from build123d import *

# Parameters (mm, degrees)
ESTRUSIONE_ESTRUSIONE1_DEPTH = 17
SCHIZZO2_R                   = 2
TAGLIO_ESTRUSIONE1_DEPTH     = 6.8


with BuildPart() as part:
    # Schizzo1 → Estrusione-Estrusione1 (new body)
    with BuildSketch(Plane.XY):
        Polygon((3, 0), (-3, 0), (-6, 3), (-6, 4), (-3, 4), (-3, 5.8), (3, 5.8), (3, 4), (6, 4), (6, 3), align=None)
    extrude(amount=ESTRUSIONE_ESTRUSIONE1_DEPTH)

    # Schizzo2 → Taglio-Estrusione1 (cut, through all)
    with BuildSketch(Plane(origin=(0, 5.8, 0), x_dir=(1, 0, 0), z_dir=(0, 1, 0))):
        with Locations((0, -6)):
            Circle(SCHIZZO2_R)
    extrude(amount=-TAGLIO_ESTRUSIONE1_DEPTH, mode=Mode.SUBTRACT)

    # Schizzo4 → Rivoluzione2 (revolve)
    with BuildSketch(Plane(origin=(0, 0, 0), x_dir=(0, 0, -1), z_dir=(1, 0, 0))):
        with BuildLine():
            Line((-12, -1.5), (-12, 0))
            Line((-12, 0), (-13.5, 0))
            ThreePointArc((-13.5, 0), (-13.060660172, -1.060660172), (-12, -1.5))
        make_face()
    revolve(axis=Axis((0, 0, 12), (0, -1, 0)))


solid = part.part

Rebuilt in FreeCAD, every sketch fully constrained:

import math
import FreeCAD as App
import Part
import Sketcher

V = App.Vector
Q = App.Units.Quantity


def add_polygon(sketch, points):
    """Adds a closed chain of lines whose ends are joined by coincident constraints."""
    first, n = sketch.GeometryCount, len(points)
    for a, b in zip(points, points[1:] + points[:1]):
        sketch.addGeometry(Part.LineSegment(App.Vector(*a, 0), App.Vector(*b, 0)), False)
    for i in range(n):
        sketch.addConstraint(Sketcher.Constraint("Coincident", first + i, 2, first + (i + 1) % n, 1))

doc = App.newDocument("Part")
body = doc.addObject("PartDesign::Body", "Body")

sketch1 = body.newObject("Sketcher::SketchObject", "Sketch")
sketch1.AttachmentSupport = (doc.getObject("XY_Plane"), [""])
sketch1.MapMode = "FlatFace"
add_polygon(sketch1, [(-3, 0), (3, 0), (6, 3), (6, 4), (3, 4), (3, 5.8), (-3, 5.8), (-3, 4), (-6, 4), (-6, 3)])
sketch1.addConstraint([
    Sketcher.Constraint("Horizontal", 0),
    Sketcher.Constraint("Vertical", 2),
    Sketcher.Constraint("Horizontal", 3),
    Sketcher.Constraint("Vertical", 4),
    Sketcher.Constraint("Horizontal", 5),
    Sketcher.Constraint("Vertical", 6),
    Sketcher.Constraint("Horizontal", 7),
    Sketcher.Constraint("Vertical", 8),
    Sketcher.Constraint("Symmetric", 0, 2, 9, 2, -1, 1),
    Sketcher.Constraint("Symmetric", 3, 2, 6, 2, -2),
    Sketcher.Constraint("Symmetric", 1, 2, 8, 2, -2),
    Sketcher.Constraint("Perpendicular", 1, 9),
    Sketcher.Constraint("Vertical", 0, 2, 3, 2),
    Sketcher.Constraint("DistanceX", 0, 1, 0, 2, Q("6 mm")),
    Sketcher.Constraint("DistanceX", 3, 2, 3, 1, Q("3 mm")),
    Sketcher.Constraint("DistanceY", 2, 1, 2, 2, Q("1 mm")),
    Sketcher.Constraint("DistanceY", 4, 1, 4, 2, Q("1.8 mm")),
])
pad1 = body.newObject("PartDesign::Pad", "Pad")
pad1.Profile = sketch1
pad1.Length = 17

sketch2 = body.newObject("Sketcher::SketchObject", "Sketch001")
sketch2.AttachmentSupport = (doc.getObject("XZ_Plane"), [""])
sketch2.MapMode = "FlatFace"
sketch2.AttachmentOffset = App.Placement(V(0, 0, -5.8), App.Rotation())
sketch2.addGeometry(Part.Circle(V(0, 6, 0), V(0, 0, 1), 2), False)
sketch2.addConstraint([
    Sketcher.Constraint("PointOnObject", 0, 3, -2),
    Sketcher.Constraint("Diameter", 0, Q("4 mm")),
    Sketcher.Constraint("DistanceY", -1, 1, 0, 3, Q("6 mm")),
])
pocket1 = body.newObject("PartDesign::Pocket", "Pocket")
pocket1.Profile = sketch2
pocket1.Type = "ThroughAll"
pocket1.Reversed = True

sketch3 = body.newObject("Sketcher::SketchObject", "Sketch002")
sketch3.AttachmentSupport = (doc.getObject("YZ_Plane"), [""])
sketch3.MapMode = "FlatFace"
sketch3.addGeometry([
    Part.LineSegment(V(-1.5, 12, 0), V(0, 12, 0)),
    Part.LineSegment(V(0, 12, 0), V(0, 13.5, 0)),
    Part.ArcOfCircle(Part.Circle(V(0, 12, 0), V(0, 0, 1), 1.5), math.radians(90), math.radians(180)),
], False)
sketch3.addGeometry(Part.LineSegment(V(0, 12, 0), V(-1.5, 12, 0)), True)
sketch3.addConstraint([
    Sketcher.Constraint("Coincident", 0, 2, 1, 1),
    Sketcher.Constraint("Coincident", 1, 2, 2, 1),
    Sketcher.Constraint("Coincident", 2, 2, 0, 1),
    Sketcher.Constraint("Horizontal", 0),
    Sketcher.Constraint("Vertical", 1),
    Sketcher.Constraint("Horizontal", 3),
    Sketcher.Constraint("Coincident", 0, 2, 2, 3),
    Sketcher.Constraint("Coincident", 3, 1, 2, 3),
    Sketcher.Constraint("PointOnObject", 2, 3, -2),
    Sketcher.Constraint("Equal", 0, 3),
    Sketcher.Constraint("Radius", 2, Q("1.5 mm")),
    Sketcher.Constraint("DistanceY", -1, 1, 2, 3, Q("12 mm")),
])
revolution = body.newObject("PartDesign::Revolution", "Revolution")
revolution.Profile = sketch3
revolution.ReferenceAxis = (sketch3, ["Axis0"])
revolution.Angle = 360

doc.recompute()
